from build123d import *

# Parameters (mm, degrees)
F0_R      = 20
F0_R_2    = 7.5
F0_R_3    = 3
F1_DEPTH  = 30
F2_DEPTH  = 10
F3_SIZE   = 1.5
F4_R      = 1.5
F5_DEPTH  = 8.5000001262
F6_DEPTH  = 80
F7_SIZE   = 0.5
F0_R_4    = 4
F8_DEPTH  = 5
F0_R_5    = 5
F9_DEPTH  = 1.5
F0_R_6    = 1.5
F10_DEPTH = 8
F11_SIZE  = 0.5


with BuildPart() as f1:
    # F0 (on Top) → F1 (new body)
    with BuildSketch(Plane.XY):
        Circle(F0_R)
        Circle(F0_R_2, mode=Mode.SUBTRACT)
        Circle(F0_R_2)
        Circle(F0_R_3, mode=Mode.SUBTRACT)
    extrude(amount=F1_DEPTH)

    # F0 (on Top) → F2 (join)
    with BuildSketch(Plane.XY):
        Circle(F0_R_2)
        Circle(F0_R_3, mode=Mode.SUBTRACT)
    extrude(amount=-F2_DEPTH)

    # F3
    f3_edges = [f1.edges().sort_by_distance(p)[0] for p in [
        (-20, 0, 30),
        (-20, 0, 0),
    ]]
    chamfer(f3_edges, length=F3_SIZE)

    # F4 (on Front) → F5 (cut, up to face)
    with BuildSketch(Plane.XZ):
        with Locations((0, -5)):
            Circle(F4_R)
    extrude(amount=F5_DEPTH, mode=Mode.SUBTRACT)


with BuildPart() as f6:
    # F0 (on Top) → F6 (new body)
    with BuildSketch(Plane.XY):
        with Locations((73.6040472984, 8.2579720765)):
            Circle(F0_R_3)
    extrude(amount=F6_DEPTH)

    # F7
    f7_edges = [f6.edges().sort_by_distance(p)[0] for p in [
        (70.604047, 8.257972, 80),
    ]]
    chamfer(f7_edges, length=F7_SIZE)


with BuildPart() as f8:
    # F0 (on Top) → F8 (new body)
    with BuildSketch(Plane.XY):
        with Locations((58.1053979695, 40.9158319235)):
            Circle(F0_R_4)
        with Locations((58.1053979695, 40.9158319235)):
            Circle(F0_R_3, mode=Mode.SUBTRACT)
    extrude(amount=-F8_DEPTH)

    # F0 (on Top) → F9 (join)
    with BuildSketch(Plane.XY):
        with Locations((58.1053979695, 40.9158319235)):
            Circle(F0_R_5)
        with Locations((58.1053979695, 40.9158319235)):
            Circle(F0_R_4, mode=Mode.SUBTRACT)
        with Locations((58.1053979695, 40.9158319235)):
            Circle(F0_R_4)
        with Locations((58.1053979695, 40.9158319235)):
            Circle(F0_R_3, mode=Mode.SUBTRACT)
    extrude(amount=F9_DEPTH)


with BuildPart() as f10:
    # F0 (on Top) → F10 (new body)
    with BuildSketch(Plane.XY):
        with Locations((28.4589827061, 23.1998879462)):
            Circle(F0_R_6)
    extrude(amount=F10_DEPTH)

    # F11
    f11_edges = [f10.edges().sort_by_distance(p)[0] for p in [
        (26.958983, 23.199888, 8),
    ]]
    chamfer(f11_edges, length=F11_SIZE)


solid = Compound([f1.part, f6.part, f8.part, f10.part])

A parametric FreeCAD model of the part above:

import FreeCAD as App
import Part
import Sketcher
Q = App.Units.Quantity


def edges_at(feature, points):
    """Names of the edges that pass closest to the given points."""
    edges = feature.Shape.Edges
    near = lambda p: min(range(len(edges)), key=lambda i: edges[i].distToShape(Part.Vertex(*p))[0])
    return sorted({f"Edge{near(p) + 1}" for p in points})

doc = App.newDocument("Part")
body = doc.addObject("PartDesign::Body", "Body")

# Sketch on XY plane
sketch1 = body.newObject("Sketcher::SketchObject", "Sketch")
sketch1.AttachmentSupport = (doc.getObject("XY_Plane"), [""])
sketch1.MapMode = "FlatFace"
sketch1.addGeometry([
    Part.Circle(App.Vector(0, 0, 0), App.Vector(0, 0, 1), 20),
    Part.Circle(App.Vector(0, 0, 0), App.Vector(0, 0, 1), 3),
], False)
sketch1.addConstraint([
    Sketcher.Constraint("Coincident", 0, 3, -1, 1),
    Sketcher.Constraint("Coincident", 1, 3, -1, 1),
    Sketcher.Constraint("Diameter", 0, Q("40 mm")),
    Sketcher.Constraint("Diameter", 1, Q("6 mm")),
])
pad1 = body.newObject("PartDesign::Pad", "Pad")
pad1.Profile = sketch1
pad1.Length = 30

# Sketch on XY plane
sketch2 = body.newObject("Sketcher::SketchObject", "Sketch001")
sketch2.AttachmentSupport = (doc.getObject("XY_Plane"), [""])
sketch2.MapMode = "FlatFace"
sketch2.addGeometry([
    Part.Circle(App.Vector(0, 0, 0), App.Vector(0, 0, 1), 7.5),
    Part.Circle(App.Vector(0, 0, 0), App.Vector(0, 0, 1), 3),
], False)
sketch2.addConstraint([
    Sketcher.Constraint("Coincident", 0, 3, -1, 1),
    Sketcher.Constraint("Coincident", 1, 3, -1, 1),
    Sketcher.Constraint("Diameter", 0, Q("15 mm")),
    Sketcher.Constraint("Diameter", 1, Q("6 mm")),
])
pad2 = body.newObject("PartDesign::Pad", "Pad001")
pad2.Profile = sketch2
pad2.Length = 10
pad2.Reversed = True
doc.recompute()

chamfer = body.newObject("PartDesign::Chamfer", "Chamfer")
chamfer.Base = (pad2, edges_at(pad2, [(-20, 0, 30), (-20, 0, 0)]))
chamfer.Size = 1.5

# Sketch on XZ plane
sketch3 = body.newObject("Sketcher::SketchObject", "Sketch002")
sketch3.AttachmentSupport = (doc.getObject("XZ_Plane"), [""])
sketch3.MapMode = "FlatFace"
sketch3.addGeometry(Part.Circle(App.Vector(0, -5, 0), App.Vector(0, 0, 1), 1.5), False)
sketch3.addConstraint([
    Sketcher.Constraint("PointOnObject", 0, 3, -2),
    Sketcher.Constraint("Diameter", 0, Q("3 mm")),
    Sketcher.Constraint("DistanceY", 0, 3, -1, 1, Q("5 mm")),
])
pocket1 = body.newObject("PartDesign::Pocket", "Pocket")
pocket1.Profile = sketch3
pocket1.Length = 8.5
pocket1.Reversed = True
body2 = doc.addObject("PartDesign::Body", "Body001")

# Sketch on XY plane
sketch4 = body2.newObject("Sketcher::SketchObject", "Sketch003")
sketch4.AttachmentSupport = (doc.getObject("XY_Plane001"), [""])
sketch4.MapMode = "FlatFace"
sketch4.addGeometry(Part.Circle(App.Vector(73.6, 8.3, 0), App.Vector(0, 0, 1), 3), False)
sketch4.addConstraint([
    Sketcher.Constraint("Diameter", 0, Q("6 mm")),
    Sketcher.Constraint("DistanceX", -1, 1, 0, 3, Q("73.604047 mm")),
    Sketcher.Constraint("DistanceY", -1, 1, 0, 3, Q("8.257972 mm")),
])
pad3 = body2.newObject("PartDesign::Pad", "Pad002")
pad3.Profile = sketch4
pad3.Length = 80
doc.recompute()

chamfer2 = body2.newObject("PartDesign::Chamfer", "Chamfer001")
chamfer2.Base = (pad3, edges_at(pad3, [(70.604, 8.258, 80)]))
chamfer2.Size = 0.5
body3 = doc.addObject("PartDesign::Body", "Body002")

# Sketch on XY plane
sketch5 = body3.newObject("Sketcher::SketchObject", "Sketch004")
sketch5.AttachmentSupport = (doc.getObject("XY_Plane002"), [""])
sketch5.MapMode = "FlatFace"
sketch5.addGeometry([
    Part.Circle(App.Vector(58.1, 40.9, 0), App.Vector(0, 0, 1), 4),
    Part.Circle(App.Vector(58.1, 40.9, 0), App.Vector(0, 0, 1), 3),
], False)
sketch5.addConstraint([
    Sketcher.Constraint("Coincident", 1, 3, 0, 3),
    Sketcher.Constraint("Diameter", 0, Q("8 mm")),
    Sketcher.Constraint("Diameter", 1, Q("6 mm")),
    Sketcher.Constraint("DistanceY", -1, 1, 0, 3, Q("40.915832 mm")),
    Sketcher.Constraint("DistanceX", -1, 1, 0, 3, Q("58.105398 mm")),
])
pad4 = body3.newObject("PartDesign::Pad", "Pad003")
pad4.Profile = sketch5
pad4.Length = 5
pad4.Reversed = True

# Sketch on XY plane
sketch6 = body3.newObject("Sketcher::SketchObject", "Sketch005")
sketch6.AttachmentSupport = (doc.getObject("XY_Plane002"), [""])
sketch6.MapMode = "FlatFace"
sketch6.addGeometry([
    Part.Circle(App.Vector(58.1, 40.9, 0), App.Vector(0, 0, 1), 5),
    Part.Circle(App.Vector(58.1, 40.9, 0), App.Vector(0, 0, 1), 3),
], False)
sketch6.addConstraint([
    Sketcher.Constraint("Coincident", 1, 3, 0, 3),
    Sketcher.Constraint("Diameter", 0, Q("10 mm")),
    Sketcher.Constraint("Diameter", 1, Q("6 mm")),
    Sketcher.Constraint("DistanceY", -1, 1, 0, 3, Q("40.915832 mm")),
    Sketcher.Constraint("DistanceX", -1, 1, 0, 3, Q("58.105398 mm")),
])
pad5 = body3.newObject("PartDesign::Pad", "Pad004")
pad5.Profile = sketch6
pad5.Length = 1.5
body4 = doc.addObject("PartDesign::Body", "Body003")

# Sketch on XY plane
sketch7 = body4.newObject("Sketcher::SketchObject", "Sketch006")
sketch7.AttachmentSupport = (doc.getObject("XY_Plane003"), [""])
sketch7.MapMode = "FlatFace"
sketch7.addGeometry(Part.Circle(App.Vector(28.5, 23.2, 0), App.Vector(0, 0, 1), 1.5), False)
sketch7.addConstraint([
    Sketcher.Constraint("Diameter", 0, Q("3 mm")),
    Sketcher.Constraint("DistanceX", -1, 1, 0, 3, Q("28.458983 mm")),
    Sketcher.Constraint("DistanceY", -1, 1, 0, 3, Q("23.199888 mm")),
])
pad6 = body4.newObject("PartDesign::Pad", "Pad005")
pad6.Profile = sketch7
pad6.Length = 8
doc.recompute()

chamfer3 = body4.newObject("PartDesign::Chamfer", "Chamfer002")
chamfer3.Base = (pad6, edges_at(pad6, [(26.959, 23.2, 8)]))
chamfer3.Size = 0.5

doc.recompute()
